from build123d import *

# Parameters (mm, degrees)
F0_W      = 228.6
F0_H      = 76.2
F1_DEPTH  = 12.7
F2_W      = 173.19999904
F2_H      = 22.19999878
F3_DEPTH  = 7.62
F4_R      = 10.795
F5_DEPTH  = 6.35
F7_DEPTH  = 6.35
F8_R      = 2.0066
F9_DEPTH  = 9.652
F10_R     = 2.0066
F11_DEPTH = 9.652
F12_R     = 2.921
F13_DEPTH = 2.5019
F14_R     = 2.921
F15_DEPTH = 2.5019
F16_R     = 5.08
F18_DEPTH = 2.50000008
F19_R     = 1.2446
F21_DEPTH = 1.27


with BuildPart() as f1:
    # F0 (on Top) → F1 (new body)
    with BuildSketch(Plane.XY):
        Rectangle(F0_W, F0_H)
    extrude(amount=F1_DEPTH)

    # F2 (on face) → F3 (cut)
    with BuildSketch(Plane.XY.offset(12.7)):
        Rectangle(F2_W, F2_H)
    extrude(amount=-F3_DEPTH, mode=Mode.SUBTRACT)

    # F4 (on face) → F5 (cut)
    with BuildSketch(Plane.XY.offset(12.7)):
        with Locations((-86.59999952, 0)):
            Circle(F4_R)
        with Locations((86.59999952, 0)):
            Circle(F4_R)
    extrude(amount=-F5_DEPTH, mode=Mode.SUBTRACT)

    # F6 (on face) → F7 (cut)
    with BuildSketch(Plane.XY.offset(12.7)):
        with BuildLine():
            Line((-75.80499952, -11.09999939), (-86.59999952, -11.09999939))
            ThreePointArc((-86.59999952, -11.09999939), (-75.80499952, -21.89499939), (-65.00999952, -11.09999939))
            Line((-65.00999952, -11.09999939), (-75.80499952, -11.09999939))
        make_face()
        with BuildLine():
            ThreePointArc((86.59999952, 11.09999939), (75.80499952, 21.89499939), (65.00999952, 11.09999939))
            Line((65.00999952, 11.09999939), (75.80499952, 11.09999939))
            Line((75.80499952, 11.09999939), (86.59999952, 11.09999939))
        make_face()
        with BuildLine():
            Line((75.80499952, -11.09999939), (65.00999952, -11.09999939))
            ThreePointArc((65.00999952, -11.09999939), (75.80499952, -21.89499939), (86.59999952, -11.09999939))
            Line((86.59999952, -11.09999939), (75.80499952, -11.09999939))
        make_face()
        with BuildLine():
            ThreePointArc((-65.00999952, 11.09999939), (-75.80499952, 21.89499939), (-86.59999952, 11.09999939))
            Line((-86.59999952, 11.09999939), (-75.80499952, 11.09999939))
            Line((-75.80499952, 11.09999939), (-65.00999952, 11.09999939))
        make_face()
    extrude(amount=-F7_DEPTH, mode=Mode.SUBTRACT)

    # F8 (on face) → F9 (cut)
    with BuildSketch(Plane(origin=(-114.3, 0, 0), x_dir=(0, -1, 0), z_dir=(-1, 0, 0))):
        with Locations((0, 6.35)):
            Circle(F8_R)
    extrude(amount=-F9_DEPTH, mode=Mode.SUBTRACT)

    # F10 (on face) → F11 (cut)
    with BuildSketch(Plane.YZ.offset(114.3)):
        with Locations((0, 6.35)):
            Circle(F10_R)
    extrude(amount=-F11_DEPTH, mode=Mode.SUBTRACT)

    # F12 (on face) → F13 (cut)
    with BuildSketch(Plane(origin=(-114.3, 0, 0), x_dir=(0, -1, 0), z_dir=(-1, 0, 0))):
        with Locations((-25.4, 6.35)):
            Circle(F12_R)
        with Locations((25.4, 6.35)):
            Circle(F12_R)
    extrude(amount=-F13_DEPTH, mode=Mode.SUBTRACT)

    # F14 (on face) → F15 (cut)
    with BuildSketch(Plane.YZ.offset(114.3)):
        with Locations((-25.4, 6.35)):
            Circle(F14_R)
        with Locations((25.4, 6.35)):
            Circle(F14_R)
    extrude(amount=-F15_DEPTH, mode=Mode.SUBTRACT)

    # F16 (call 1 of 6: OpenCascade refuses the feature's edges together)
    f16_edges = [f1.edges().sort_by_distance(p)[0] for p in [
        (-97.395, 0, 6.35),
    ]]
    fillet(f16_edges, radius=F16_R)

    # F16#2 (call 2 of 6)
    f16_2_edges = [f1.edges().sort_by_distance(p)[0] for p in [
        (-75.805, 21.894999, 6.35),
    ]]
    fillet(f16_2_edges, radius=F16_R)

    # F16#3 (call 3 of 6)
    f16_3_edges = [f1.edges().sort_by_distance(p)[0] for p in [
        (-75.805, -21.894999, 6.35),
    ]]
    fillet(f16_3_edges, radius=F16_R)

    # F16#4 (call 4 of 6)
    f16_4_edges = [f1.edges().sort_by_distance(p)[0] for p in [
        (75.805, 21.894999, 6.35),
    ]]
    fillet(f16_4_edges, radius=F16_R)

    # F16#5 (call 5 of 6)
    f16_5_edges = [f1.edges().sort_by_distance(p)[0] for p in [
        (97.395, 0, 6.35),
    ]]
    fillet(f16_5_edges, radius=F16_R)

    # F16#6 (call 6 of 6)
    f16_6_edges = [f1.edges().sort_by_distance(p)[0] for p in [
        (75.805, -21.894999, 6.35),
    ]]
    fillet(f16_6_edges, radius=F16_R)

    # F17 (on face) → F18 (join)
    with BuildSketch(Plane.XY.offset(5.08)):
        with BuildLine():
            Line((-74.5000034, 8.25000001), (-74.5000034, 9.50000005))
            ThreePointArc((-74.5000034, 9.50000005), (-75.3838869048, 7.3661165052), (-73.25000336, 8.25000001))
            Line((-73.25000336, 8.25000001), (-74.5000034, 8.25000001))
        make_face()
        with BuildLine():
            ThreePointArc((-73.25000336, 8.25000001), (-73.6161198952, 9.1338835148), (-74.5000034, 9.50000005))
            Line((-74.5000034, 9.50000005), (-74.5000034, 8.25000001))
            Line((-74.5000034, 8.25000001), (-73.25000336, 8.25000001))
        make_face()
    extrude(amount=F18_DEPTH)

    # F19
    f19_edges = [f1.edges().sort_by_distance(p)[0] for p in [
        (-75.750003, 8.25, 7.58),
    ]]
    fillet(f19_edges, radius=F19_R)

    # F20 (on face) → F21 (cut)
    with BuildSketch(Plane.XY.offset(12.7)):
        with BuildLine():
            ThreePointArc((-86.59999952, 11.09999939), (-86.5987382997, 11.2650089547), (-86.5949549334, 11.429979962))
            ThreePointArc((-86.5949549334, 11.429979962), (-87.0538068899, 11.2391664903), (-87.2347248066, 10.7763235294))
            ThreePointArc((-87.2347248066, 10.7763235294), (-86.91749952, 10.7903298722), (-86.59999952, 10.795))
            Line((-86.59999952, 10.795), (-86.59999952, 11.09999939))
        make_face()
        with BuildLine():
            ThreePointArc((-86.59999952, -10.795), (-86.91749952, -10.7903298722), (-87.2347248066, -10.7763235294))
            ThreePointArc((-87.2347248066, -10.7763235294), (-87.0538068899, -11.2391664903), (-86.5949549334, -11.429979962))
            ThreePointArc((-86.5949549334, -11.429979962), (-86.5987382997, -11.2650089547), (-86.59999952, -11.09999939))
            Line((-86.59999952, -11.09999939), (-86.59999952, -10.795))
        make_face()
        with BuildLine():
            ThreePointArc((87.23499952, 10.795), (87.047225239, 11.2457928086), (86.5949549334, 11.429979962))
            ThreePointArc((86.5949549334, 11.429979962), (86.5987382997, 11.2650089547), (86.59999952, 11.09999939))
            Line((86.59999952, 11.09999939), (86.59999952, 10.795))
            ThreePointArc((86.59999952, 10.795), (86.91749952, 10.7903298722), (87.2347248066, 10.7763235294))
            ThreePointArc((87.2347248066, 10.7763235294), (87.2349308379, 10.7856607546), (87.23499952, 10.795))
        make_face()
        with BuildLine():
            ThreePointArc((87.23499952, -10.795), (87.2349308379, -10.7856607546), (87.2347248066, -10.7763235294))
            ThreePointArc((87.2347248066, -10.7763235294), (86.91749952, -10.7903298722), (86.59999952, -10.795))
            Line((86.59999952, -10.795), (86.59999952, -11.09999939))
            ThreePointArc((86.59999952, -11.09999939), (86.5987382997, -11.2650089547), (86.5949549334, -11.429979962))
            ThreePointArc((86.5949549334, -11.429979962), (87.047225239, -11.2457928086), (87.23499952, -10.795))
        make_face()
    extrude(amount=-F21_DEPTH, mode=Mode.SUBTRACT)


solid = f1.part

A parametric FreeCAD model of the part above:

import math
import FreeCAD as App
import Part
import Sketcher
from FreeCAD import Vector
Q = App.Units.Quantity


def edges_at(feature, points):
    """Names of the edges that pass closest to the given points."""
    edges = feature.Shape.Edges
    near = lambda p: min(range(len(edges)), key=lambda i: edges[i].distToShape(Part.Vertex(*p))[0])
    return sorted({f"Edge{near(p) + 1}" for p in points})


def add_polygon(sketch, points):
    """Adds a closed chain of lines whose ends are joined by coincident constraints."""
    first, n = sketch.GeometryCount, len(points)
    for a, b in zip(points, points[1:] + points[:1]):
        sketch.addGeometry(Part.LineSegment(App.Vector(*a, 0), App.Vector(*b, 0)), False)
    for i in range(n):
        sketch.addConstraint(Sketcher.Constraint("Coincident", first + i, 2, first + (i + 1) % n, 1))

doc = App.newDocument("Part")
body = doc.addObject("PartDesign::Body", "Body")

sketch1 = body.newObject("Sketcher::SketchObject", "Sketch")
sketch1.AttachmentSupport = (doc.getObject("XY_Plane"), [""])
sketch1.MapMode = "FlatFace"
add_polygon(sketch1, [(-114, 38), (-114, -38), (114, -38), (114, 38)])
sketch1.addConstraint([
    Sketcher.Constraint("Vertical", 0),
    Sketcher.Constraint("Horizontal", 1),
    Sketcher.Constraint("Vertical", 2),
    Sketcher.Constraint("Horizontal", 3),
    Sketcher.Constraint("Symmetric", 0, 2, 2, 2, -1, 1),
    Sketcher.Constraint("DistanceX", 1, 1, 1, 2, Q("9 in")),
    Sketcher.Constraint("DistanceY", 0, 2, 0, 1, Q("3 in")),
])
pad1 = body.newObject("PartDesign::Pad", "Pad")
pad1.Profile = sketch1
pad1.Length = Q("0.5 in")

sketch2 = body.newObject("Sketcher::SketchObject", "Sketch001")
sketch2.AttachmentSupport = (doc.getObject("XY_Plane"), [""])
sketch2.MapMode = "FlatFace"
sketch2.AttachmentOffset = App.Placement(Vector(0, 0, 0.5 * 25.4), App.Rotation())
add_polygon(sketch2, [(-87, 11), (-87, -11), (87, -11), (87, 11)])
sketch2.addConstraint([
    Sketcher.Constraint("Vertical", 0),
    Sketcher.Constraint("Horizontal", 1),
    Sketcher.Constraint("Vertical", 2),
    Sketcher.Constraint("Horizontal", 3),
    Sketcher.Constraint("Symmetric", 0, 2, 2, 2, -1, 1),
    Sketcher.Constraint("DistanceX", 1, 1, 1, 2, 173.199999),
    Sketcher.Constraint("DistanceY", 0, 2, 0, 1, 22.199999),
])
pocket1 = body.newObject("PartDesign::Pocket", "Pocket")
pocket1.Profile = sketch2
pocket1.Length = Q("0.3 in")

sketch3 = body.newObject("Sketcher::SketchObject", "Sketch002")
sketch3.AttachmentSupport = (doc.getObject("XY_Plane"), [""])
sketch3.MapMode = "FlatFace"
sketch3.AttachmentOffset = App.Placement(Vector(0, 0, 0.5 * 25.4), App.Rotation())
sketch3.addGeometry([
    Part.Circle(Vector(-87, 0, 0), Vector(0, 0, 1), 11),
    Part.Circle(Vector(87, 0, 0), Vector(0, 0, 1), 11),
], False)
sketch3.addConstraint([
    Sketcher.Constraint("Equal", 0, 1),
    Sketcher.Constraint("Symmetric", 0, 3, 1, 3, -1, 1),
    Sketcher.Constraint("PointOnObject", 0, 3, -1),
    Sketcher.Constraint("Diameter", 0, Q("0.85 in")),
    Sketcher.Constraint("DistanceX", 0, 3, -1, 1, 86.6),
])
pocket2 = body.newObject("PartDesign::Pocket", "Pocket001")
pocket2.Profile = sketch3
pocket2.Length = Q("0.25 in")

sketch4 = body.newObject("Sketcher::SketchObject", "Sketch003")
sketch4.AttachmentSupport = (doc.getObject("XY_Plane"), [""])
sketch4.MapMode = "FlatFace"
sketch4.AttachmentOffset = App.Placement(Vector(0, 0, 0.5 * 25.4), App.Rotation())
sketch4.addGeometry([
    Part.ArcOfCircle(Part.Circle(Vector(-76, -11, 0), Vector(0, 0, 1), 11), math.radians(180), math.radians(360)),
    Part.LineSegment(Vector(-65, -11, 0), Vector(-87, -11, 0)),
    Part.ArcOfCircle(Part.Circle(Vector(76, 11, 0), Vector(0, 0, 1), 11), math.radians(0), math.radians(180)),
    Part.LineSegment(Vector(65, 11, 0), Vector(87, 11, 0)),
    Part.ArcOfCircle(Part.Circle(Vector(76, -11, 0), Vector(0, 0, 1), 11), math.radians(180), math.radians(360)),
    Part.LineSegment(Vector(87, -11, 0), Vector(65, -11, 0)),
    Part.ArcOfCircle(Part.Circle(Vector(-76, 11, 0), Vector(0, 0, 1), 11), math.radians(0), math.radians(180)),
    Part.LineSegment(Vector(-87, 11, 0), Vector(-65, 11, 0)),
], False)
sketch4.addConstraint([
    Sketcher.Constraint("Coincident", 0, 1, 1, 2),
    Sketcher.Constraint("Coincident", 1, 1, 0, 2),
    Sketcher.Constraint("Coincident", 2, 1, 3, 2),
    Sketcher.Constraint("Coincident", 3, 1, 2, 2),
    Sketcher.Constraint("Coincident", 4, 1, 5, 2),
    Sketcher.Constraint("Coincident", 5, 1, 4, 2),
    Sketcher.Constraint("Coincident", 6, 1, 7, 2),
    Sketcher.Constraint("Coincident", 7, 1, 6, 2),
    Sketcher.Constraint("Horizontal", 1),
    Sketcher.Constraint("Horizontal", 3),
    Sketcher.Constraint("Horizontal", 5),
    Sketcher.Constraint("Horizontal", 7),
    Sketcher.Constraint("Equal", 0, 2),
    Sketcher.Constraint("Equal", 2, 4),
    Sketcher.Constraint("Equal", 4, 6),
    Sketcher.Constraint("Symmetric", 0, 3, 2, 3, -1, 1),
    Sketcher.Constraint("Symmetric", 4, 3, 6, 3, -1, 1),
    Sketcher.Constraint("Symmetric", 0, 3, 4, 3, -2),
    Sketcher.Constraint("Horizontal", 4, 3, 0, 1),
    Sketcher.Constraint("Horizontal", 6, 3, 2, 1),
    Sketcher.Constraint("Horizontal", 1, 1, 4, 1),
    Sketcher.Constraint("Horizontal", 3, 1, 6, 1),
    Sketcher.Constraint("Radius", 0, Q("0.425 in")),
    Sketcher.Constraint("DistanceX", 0, 3, -1, 1, 75.805),
    Sketcher.Constraint("DistanceY", 0, 3, -1, 1, 11.099999),
])
pocket3 = body.newObject("PartDesign::Pocket", "Pocket002")
pocket3.Profile = sketch4
pocket3.Length = Q("0.25 in")

sketch5 = body.newObject("Sketcher::SketchObject", "Sketch004")
sketch5.AttachmentSupport = (doc.getObject("YZ_Plane"), [""])
sketch5.MapMode = "FlatFace"
sketch5.AttachmentOffset = App.Placement(Vector(0, 0, -4.5 * 25.4), App.Rotation())
sketch5.addGeometry(Part.Circle(Vector(0, 6.3, 0), Vector(0, 0, 1), 2), False)
sketch5.addConstraint([
    Sketcher.Constraint("PointOnObject", 0, 3, -2),
    Sketcher.Constraint("Diameter", 0, Q("0.158 in")),
    Sketcher.Constraint("DistanceY", -1, 1, 0, 3, Q("0.25 in")),
])
pocket4 = body.newObject("PartDesign::Pocket", "Pocket003")
pocket4.Profile = sketch5
pocket4.Length = Q("0.38 in")
pocket4.Reversed = True

sketch6 = body.newObject("Sketcher::SketchObject", "Sketch005")
sketch6.AttachmentSupport = (doc.getObject("YZ_Plane"), [""])
sketch6.MapMode = "FlatFace"
sketch6.AttachmentOffset = App.Placement(Vector(0, 0, 4.5 * 25.4), App.Rotation())
sketch6.addGeometry(Part.Circle(Vector(0, 6.3, 0), Vector(0, 0, 1), 2), False)
sketch6.addConstraint([
    Sketcher.Constraint("PointOnObject", 0, 3, -2),
    Sketcher.Constraint("Diameter", 0, Q("0.158 in")),
    Sketcher.Constraint("DistanceY", -1, 1, 0, 3, Q("0.25 in")),
])
pocket5 = body.newObject("PartDesign::Pocket", "Pocket004")
pocket5.Profile = sketch6
pocket5.Length = Q("0.38 in")

sketch7 = body.newObject("Sketcher::SketchObject", "Sketch006")
sketch7.AttachmentSupport = (doc.getObject("YZ_Plane"), [""])
sketch7.MapMode = "FlatFace"
sketch7.AttachmentOffset = App.Placement(Vector(0, 0, -4.5 * 25.4), App.Rotation())
sketch7.addGeometry([
    Part.Circle(Vector(25.4, 6.3, 0), Vector(0, 0, 1), 2.9),
    Part.Circle(Vector(-25.4, 6.3, 0), Vector(0, 0, 1), 2.9),
], False)
sketch7.addConstraint([
    Sketcher.Constraint("Equal", 0, 1),
    Sketcher.Constraint("Symmetric", 0, 3, 1, 3, -2),
    Sketcher.Constraint("Diameter", 0, Q("0.23 in")),
    Sketcher.Constraint("DistanceX", -1, 1, 0, 3, Q("1 in")),
    Sketcher.Constraint("DistanceY", -1, 1, 0, 3, Q("0.25 in")),
])
pocket6 = body.newObject("PartDesign::Pocket", "Pocket005")
pocket6.Profile = sketch7
pocket6.Length = Q("0.0985 in")
pocket6.Reversed = True

sketch8 = body.newObject("Sketcher::SketchObject", "Sketch007")
sketch8.AttachmentSupport = (doc.getObject("YZ_Plane"), [""])
sketch8.MapMode = "FlatFace"
sketch8.AttachmentOffset = App.Placement(Vector(0, 0, 4.5 * 25.4), App.Rotation())
sketch8.addGeometry([
    Part.Circle(Vector(-25.4, 6.3, 0), Vector(0, 0, 1), 2.9),
    Part.Circle(Vector(25.4, 6.3, 0), Vector(0, 0, 1), 2.9),
], False)
sketch8.addConstraint([
    Sketcher.Constraint("Equal", 0, 1),
    Sketcher.Constraint("Symmetric", 0, 3, 1, 3, -2),
    Sketcher.Constraint("Diameter", 0, Q("0.23 in")),
    Sketcher.Constraint("DistanceX", 0, 3, -1, 1, Q("1 in")),
    Sketcher.Constraint("DistanceY", -1, 1, 0, 3, Q("0.25 in")),
])
pocket7 = body.newObject("PartDesign::Pocket", "Pocket006")
pocket7.Profile = sketch8
pocket7.Length = Q("0.0985 in")
doc.recompute()

fillet = body.newObject("PartDesign::Fillet", "Fillet")
fillet.Base = (pocket7, edges_at(pocket7, [(-97.395, 0, 6.35)]))
fillet.Radius = Q("0.2 in")
doc.recompute()

fillet2 = body.newObject("PartDesign::Fillet", "Fillet001")
fillet2.Base = (fillet, edges_at(fillet, [(-75.805, 21.895, 6.35)]))
fillet2.Radius = Q("0.2 in")
doc.recompute()

fillet3 = body.newObject("PartDesign::Fillet", "Fillet002")
fillet3.Base = (fillet2, edges_at(fillet2, [(-75.805, -21.895, 6.35)]))
fillet3.Radius = Q("0.2 in")
doc.recompute()

fillet4 = body.newObject("PartDesign::Fillet", "Fillet003")
fillet4.Base = (fillet3, edges_at(fillet3, [(75.805, 21.895, 6.35)]))
fillet4.Radius = Q("0.2 in")
doc.recompute()

fillet5 = body.newObject("PartDesign::Fillet", "Fillet004")
fillet5.Base = (fillet4, edges_at(fillet4, [(97.395, 0, 6.35)]))
fillet5.Radius = Q("0.2 in")
doc.recompute()

fillet6 = body.newObject("PartDesign::Fillet", "Fillet005")
fillet6.Base = (fillet5, edges_at(fillet5, [(75.805, -21.895, 6.35)]))
fillet6.Radius = Q("0.2 in")

sketch9 = body.newObject("Sketcher::SketchObject", "Sketch008")
sketch9.AttachmentSupport = (doc.getObject("XY_Plane"), [""])
sketch9.MapMode = "FlatFace"
sketch9.AttachmentOffset = App.Placement(Vector(0, 0, 0.2 * 25.4), App.Rotation())
sketch9.addGeometry([
    Part.ArcOfCircle(Part.Circle(Vector(-74.5, 8.3, 0), Vector(0, 0, 1), 1.3), math.radians(90), math.radians(360)),
    Part.ArcOfCircle(Part.Circle(Vector(-74.5, 8.3, 0), Vector(0, 0, 1), 1.3), math.radians(0), math.radians(90)),
], False)
sketch9.addConstraint([
    Sketcher.Constraint("Tangent", 0, 1, 1, 2),
    Sketcher.Constraint("Coincident", 1, 1, 0, 2),
    Sketcher.Constraint("Horizontal", 0, 3, 1, 1),
    Sketcher.Constraint("Vertical", 1, 3, 0, 1),
    Sketcher.Constraint("Radius", 0, 1.25),
    Sketcher.Constraint("DistanceY", -1, 1, 0, 3, 8.25),
    Sketcher.Constraint("DistanceX", 0, 3, -1, 1, 74.500003),
])
pad2 = body.newObject("PartDesign::Pad", "Pad001")
pad2.Profile = sketch9
pad2.Length = 2.5
doc.recompute()

fillet7 = body.newObject("PartDesign::Fillet", "Fillet006")
fillet7.Base = (pad2, edges_at(pad2, [(-75.384, 7.366, 7.58)]))
fillet7.Radius = Q("0.049 in")

sketch10 = body.newObject("Sketcher::SketchObject", "Sketch009")
sketch10.AttachmentSupport = (doc.getObject("XY_Plane"), [""])
sketch10.MapMode = "FlatFace"
sketch10.AttachmentOffset = App.Placement(Vector(0, 0, 0.5 * 25.4), App.Rotation())
sketch10.addGeometry([
    Part.ArcOfCircle(Part.Circle(Vector(-75.805, 11.1, 0), Vector(0, 0, 1), 10.795), math.radians(178.25), math.radians(180)),
    Part.ArcOfCircle(Part.Circle(Vector(-86.6, 10.795, 0), Vector(0, 0, 1), 0.635), math.radians(90), math.radians(182)),
    Part.ArcOfCircle(Part.Circle(Vector(-86.6, 0, 0), Vector(0, 0, 1), 10.795), math.radians(90), math.radians(93.37)),
    Part.LineSegment(Vector(-86.6, 10.795, 0), Vector(-86.6, 11.1, 0)),
    Part.ArcOfCircle(Part.Circle(Vector(-86.6, 0, 0), Vector(0, 0, 1), 10.795), math.radians(-93.37), math.radians(-90)),
    Part.ArcOfCircle(Part.Circle(Vector(-86.6, -10.795, 0), Vector(0, 0, 1), 0.635), math.radians(178), math.radians(270)),
    Part.ArcOfCircle(Part.Circle(Vector(-75.805, -11.1, 0), Vector(0, 0, 1), 10.795), math.radians(180), math.radians(181.75)),
    Part.LineSegment(Vector(-86.6, -11.1, 0), Vector(-86.6, -10.795, 0)),
    Part.ArcOfCircle(Part.Circle(Vector(86.6, 10.795, 0), Vector(0, 0, 1), 0.635), math.radians(0), math.radians(90)),
    Part.ArcOfCircle(Part.Circle(Vector(75.805, 11.1, 0), Vector(0, 0, 1), 10.795), math.radians(0), math.radians(1.75)),
    Part.LineSegment(Vector(86.6, 11.1, 0), Vector(86.6, 10.795, 0)),
    Part.ArcOfCircle(Part.Circle(Vector(86.6, 0, 0), Vector(0, 0, 1), 10.795), math.radians(86.63), math.radians(90)),
    Part.ArcOfCircle(Part.Circle(Vector(86.6, 10.795, 0), Vector(0, 0, 1), 0.635), math.radians(-1.69), math.radians(0)),
    Part.ArcOfCircle(Part.Circle(Vector(86.6, -10.795, 0), Vector(0, 0, 1), 0.635), math.radians(0), math.radians(1.69)),
    Part.ArcOfCircle(Part.Circle(Vector(86.6, 0, 0), Vector(0, 0, 1), 10.795), math.radians(-90), math.radians(-86.63)),
    Part.LineSegment(Vector(86.6, -10.795, 0), Vector(86.6, -11.1, 0)),
    Part.ArcOfCircle(Part.Circle(Vector(75.805, -11.1, 0), Vector(0, 0, 1), 10.795), math.radians(-1.75), math.radians(0)),
    Part.ArcOfCircle(Part.Circle(Vector(86.6, -10.795, 0), Vector(0, 0, 1), 0.635), math.radians(-90), math.radians(0)),
], False)
sketch10.addConstraint([
    Sketcher.Constraint("Coincident", 0, 1, 1, 1),
    Sketcher.Constraint("Coincident", 1, 2, 2, 2),
    Sketcher.Constraint("Coincident", 2, 1, 3, 1),
    Sketcher.Constraint("Tangent", 3, 2, 0, 2),
    Sketcher.Constraint("Coincident", 4, 1, 5, 1),
    Sketcher.Constraint("Coincident", 5, 2, 6, 2),
    Sketcher.Constraint("Tangent", 6, 1, 7, 1),
    Sketcher.Constraint("Coincident", 7, 2, 4, 2),
    Sketcher.Constraint("Coincident", 8, 2, 9, 2),
    Sketcher.Constraint("Tangent", 9, 1, 10, 1),
    Sketcher.Constraint("Coincident", 10, 2, 11, 2),
    Sketcher.Constraint("Coincident", 11, 1, 12, 1),
    Sketcher.Constraint("Tangent", 12, 2, 8, 1),
    Sketcher.Constraint("Coincident", 13, 2, 14, 2),
    Sketcher.Constraint("Coincident", 14, 1, 15, 1),
    Sketcher.Constraint("Tangent", 15, 2, 16, 2),
    Sketcher.Constraint("Coincident", 16, 1, 17, 1),
    Sketcher.Constraint("Tangent", 17, 2, 13, 1),
    Sketcher.Constraint("Vertical", 3),
    Sketcher.Constraint("Vertical", 7),
    Sketcher.Constraint("Vertical", 10),
    Sketcher.Constraint("Vertical", 15),
    Sketcher.Constraint("Coincident", 4, 3, 2, 3),
    Sketcher.Constraint("Coincident", 14, 3, 11, 3),
    Sketcher.Constraint("Coincident", 2, 1, 1, 3),
    Sketcher.Constraint("Coincident", 7, 2, 5, 3),
    Sketcher.Constraint("Coincident", 10, 2, 8, 3),
    Sketcher.Constraint("Coincident", 14, 1, 13, 3),
    Sketcher.Constraint("Equal", 0, 2),
    Sketcher.Constraint("Equal", 2, 4),
    Sketcher.Constraint("Equal", 1, 5),
    Sketcher.Constraint("Equal", 4, 6),
    Sketcher.Constraint("Equal", 5, 8),
    Sketcher.Constraint("Equal", 6, 9),
    Sketcher.Constraint("Equal", 9, 11),
    Sketcher.Constraint("Equal", 8, 12),
    Sketcher.Constraint("Equal", 12, 13),
    Sketcher.Constraint("Equal", 11, 14),
    Sketcher.Constraint("Equal", 14, 16),
    Sketcher.Constraint("Equal", 13, 17),
    Sketcher.Constraint("Symmetric", 5, 3, 8, 3, -1, 1),
    Sketcher.Constraint("Symmetric", 0, 3, 16, 3, -1, 1),
    Sketcher.Constraint("Symmetric", 1, 3, 8, 3, -2),
    Sketcher.Constraint("Horizontal", 0, 3, 9, 3),
    Sketcher.Constraint("Horizontal", 6, 3, 16, 3),
    Sketcher.Constraint("Horizontal", 1, 2, 11, 1),
    Sketcher.Constraint("Horizontal", 10, 2, 12, 2),
    Sketcher.Constraint("Horizontal", 14, 1, 17, 2),
    Sketcher.Constraint("Vertical", 1, 3, 2, 3),
    Sketcher.Constraint("Radius", 0, Q("0.425 in")),
    Sketcher.Constraint("Radius", 1, Q("0.025 in")),
    Sketcher.Constraint("DistanceY", 3, 1, 3, 2, 0.304999),
    Sketcher.Constraint("DistanceX", 0, 3, -1, 1, 75.805),
])
pocket8 = body.newObject("PartDesign::Pocket", "Pocket007")
pocket8.Profile = sketch10
pocket8.Length = Q("0.05 in")

doc.recompute()
